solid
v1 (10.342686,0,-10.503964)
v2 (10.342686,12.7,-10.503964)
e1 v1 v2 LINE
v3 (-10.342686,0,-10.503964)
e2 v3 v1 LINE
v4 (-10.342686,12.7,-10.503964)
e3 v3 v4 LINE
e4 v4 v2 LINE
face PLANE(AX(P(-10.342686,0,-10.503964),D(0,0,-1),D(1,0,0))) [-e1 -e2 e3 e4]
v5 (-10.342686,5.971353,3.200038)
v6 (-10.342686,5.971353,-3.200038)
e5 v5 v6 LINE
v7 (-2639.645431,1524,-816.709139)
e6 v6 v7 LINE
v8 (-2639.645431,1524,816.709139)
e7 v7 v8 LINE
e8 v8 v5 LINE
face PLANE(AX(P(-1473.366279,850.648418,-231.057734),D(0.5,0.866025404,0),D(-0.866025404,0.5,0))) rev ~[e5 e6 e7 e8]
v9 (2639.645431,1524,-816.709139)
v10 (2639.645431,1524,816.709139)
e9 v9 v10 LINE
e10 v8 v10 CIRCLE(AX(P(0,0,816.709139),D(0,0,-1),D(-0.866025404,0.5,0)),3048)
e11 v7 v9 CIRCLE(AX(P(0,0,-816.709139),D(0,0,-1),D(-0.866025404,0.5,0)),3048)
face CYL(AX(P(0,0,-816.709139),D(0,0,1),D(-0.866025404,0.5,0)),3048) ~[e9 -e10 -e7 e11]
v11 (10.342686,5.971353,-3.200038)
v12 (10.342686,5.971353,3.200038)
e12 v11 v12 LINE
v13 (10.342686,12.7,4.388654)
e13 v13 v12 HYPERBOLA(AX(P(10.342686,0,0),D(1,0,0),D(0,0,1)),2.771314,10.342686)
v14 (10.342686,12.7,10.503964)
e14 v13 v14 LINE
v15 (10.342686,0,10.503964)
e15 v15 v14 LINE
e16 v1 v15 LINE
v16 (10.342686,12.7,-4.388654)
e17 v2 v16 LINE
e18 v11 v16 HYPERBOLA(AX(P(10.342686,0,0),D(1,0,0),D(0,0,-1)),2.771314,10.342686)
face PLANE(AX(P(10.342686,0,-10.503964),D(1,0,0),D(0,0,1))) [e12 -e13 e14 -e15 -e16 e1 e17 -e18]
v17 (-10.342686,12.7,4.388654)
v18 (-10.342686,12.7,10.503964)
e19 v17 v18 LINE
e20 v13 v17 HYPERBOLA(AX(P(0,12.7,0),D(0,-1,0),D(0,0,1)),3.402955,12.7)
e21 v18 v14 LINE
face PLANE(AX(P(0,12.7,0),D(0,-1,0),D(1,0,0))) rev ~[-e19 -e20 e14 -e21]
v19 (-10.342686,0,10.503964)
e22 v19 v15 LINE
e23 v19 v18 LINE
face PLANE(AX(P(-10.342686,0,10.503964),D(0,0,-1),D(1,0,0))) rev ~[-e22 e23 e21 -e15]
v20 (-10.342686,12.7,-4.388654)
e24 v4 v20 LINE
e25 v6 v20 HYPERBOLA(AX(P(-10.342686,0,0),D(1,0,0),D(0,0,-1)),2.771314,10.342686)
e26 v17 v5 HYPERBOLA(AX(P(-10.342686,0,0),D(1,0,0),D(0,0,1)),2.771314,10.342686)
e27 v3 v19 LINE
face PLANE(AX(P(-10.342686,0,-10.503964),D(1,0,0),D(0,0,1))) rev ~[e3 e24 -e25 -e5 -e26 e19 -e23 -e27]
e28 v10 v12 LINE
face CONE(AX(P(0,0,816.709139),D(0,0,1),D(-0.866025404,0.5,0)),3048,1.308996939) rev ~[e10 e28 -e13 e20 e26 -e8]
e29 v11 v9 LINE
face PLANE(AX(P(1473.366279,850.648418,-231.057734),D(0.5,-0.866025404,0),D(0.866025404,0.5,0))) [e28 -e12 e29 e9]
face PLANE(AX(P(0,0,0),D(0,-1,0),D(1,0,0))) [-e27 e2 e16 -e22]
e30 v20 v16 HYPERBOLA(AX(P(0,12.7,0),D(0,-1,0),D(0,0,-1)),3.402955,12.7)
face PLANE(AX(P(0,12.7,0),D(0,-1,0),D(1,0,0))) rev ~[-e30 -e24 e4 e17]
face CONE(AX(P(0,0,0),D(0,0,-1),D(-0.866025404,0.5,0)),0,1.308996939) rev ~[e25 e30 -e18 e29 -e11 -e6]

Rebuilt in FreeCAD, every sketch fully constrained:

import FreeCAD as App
import Part
import Sketcher
from FreeCAD import Vector
Q = App.Units.Quantity


def add_polygon(sketch, points):
    """Adds a closed chain of lines whose ends are joined by coincident constraints."""
    first, n = sketch.GeometryCount, len(points)
    for a, b in zip(points, points[1:] + points[:1]):
        sketch.addGeometry(Part.LineSegment(App.Vector(*a, 0), App.Vector(*b, 0)), False)
    for i in range(n):
        sketch.addConstraint(Sketcher.Constraint("Coincident", first + i, 2, first + (i + 1) % n, 1))

doc = App.newDocument("Part")
body = doc.addObject("PartDesign::Body", "Body")

# Sketch on an angled plane
sketch1 = body.newObject("Sketcher::SketchObject", "Sketch")
sketch1.Placement = App.Placement(Vector(0, 0, 0), App.Rotation(Vector(-0.866025404, 0.5, 0), Vector(0, 0, 1), Vector(0.5, 0.866025404, 0), "ZXY"))
add_polygon(sketch1, [(0, 0), (3048, -817), (3048, 817)])  # lines 0-2
sketch1.addConstraint([
    Sketcher.Constraint("Vertical", 1),
    Sketcher.Constraint("Coincident", 2, 2, -1, 1),
    Sketcher.Constraint("Equal", 0, 2),
    Sketcher.Constraint("DistanceX", -1, 1, 0, 2, Q("120 in")),
    Sketcher.Constraint("Angle", 0, Q("-15 deg")),
])
revolution = body.newObject("PartDesign::Revolution", "Revolution")
revolution.Profile = sketch1
revolution.ReferenceAxis = (sketch1, ["V_Axis"])
revolution.Angle = 120
revolution.Reversed = True

# Sketch on XZ plane
sketch2 = body.newObject("Sketcher::SketchObject", "Sketch001")
sketch2.AttachmentSupport = (doc.getObject("XZ_Plane"), [""])
sketch2.MapMode = "FlatFace"
add_polygon(sketch2, [(-10, 11), (-10, -11), (10, -11), (10, 11)])  # lines 0-3
sketch2.addConstraint([
    Sketcher.Constraint("Vertical", 0),
    Sketcher.Constraint("Horizontal", 1),
    Sketcher.Constraint("Vertical", 2),
    Sketcher.Constraint("Horizontal", 3),
    Sketcher.Constraint("Symmetric", 0, 2, 2, 2, -1, 1),
    Sketcher.Constraint("DistanceX", 1, 1, 1, 2, 20.685373),
    Sketcher.Constraint("DistanceY", 0, 2, 0, 1, 21.007927),
])
pad1 = body.newObject("PartDesign::Pad", "Pad")
pad1.Profile = sketch2
pad1.Length = Q("0.5 in")
pad1.Reversed = True

doc.recompute()
